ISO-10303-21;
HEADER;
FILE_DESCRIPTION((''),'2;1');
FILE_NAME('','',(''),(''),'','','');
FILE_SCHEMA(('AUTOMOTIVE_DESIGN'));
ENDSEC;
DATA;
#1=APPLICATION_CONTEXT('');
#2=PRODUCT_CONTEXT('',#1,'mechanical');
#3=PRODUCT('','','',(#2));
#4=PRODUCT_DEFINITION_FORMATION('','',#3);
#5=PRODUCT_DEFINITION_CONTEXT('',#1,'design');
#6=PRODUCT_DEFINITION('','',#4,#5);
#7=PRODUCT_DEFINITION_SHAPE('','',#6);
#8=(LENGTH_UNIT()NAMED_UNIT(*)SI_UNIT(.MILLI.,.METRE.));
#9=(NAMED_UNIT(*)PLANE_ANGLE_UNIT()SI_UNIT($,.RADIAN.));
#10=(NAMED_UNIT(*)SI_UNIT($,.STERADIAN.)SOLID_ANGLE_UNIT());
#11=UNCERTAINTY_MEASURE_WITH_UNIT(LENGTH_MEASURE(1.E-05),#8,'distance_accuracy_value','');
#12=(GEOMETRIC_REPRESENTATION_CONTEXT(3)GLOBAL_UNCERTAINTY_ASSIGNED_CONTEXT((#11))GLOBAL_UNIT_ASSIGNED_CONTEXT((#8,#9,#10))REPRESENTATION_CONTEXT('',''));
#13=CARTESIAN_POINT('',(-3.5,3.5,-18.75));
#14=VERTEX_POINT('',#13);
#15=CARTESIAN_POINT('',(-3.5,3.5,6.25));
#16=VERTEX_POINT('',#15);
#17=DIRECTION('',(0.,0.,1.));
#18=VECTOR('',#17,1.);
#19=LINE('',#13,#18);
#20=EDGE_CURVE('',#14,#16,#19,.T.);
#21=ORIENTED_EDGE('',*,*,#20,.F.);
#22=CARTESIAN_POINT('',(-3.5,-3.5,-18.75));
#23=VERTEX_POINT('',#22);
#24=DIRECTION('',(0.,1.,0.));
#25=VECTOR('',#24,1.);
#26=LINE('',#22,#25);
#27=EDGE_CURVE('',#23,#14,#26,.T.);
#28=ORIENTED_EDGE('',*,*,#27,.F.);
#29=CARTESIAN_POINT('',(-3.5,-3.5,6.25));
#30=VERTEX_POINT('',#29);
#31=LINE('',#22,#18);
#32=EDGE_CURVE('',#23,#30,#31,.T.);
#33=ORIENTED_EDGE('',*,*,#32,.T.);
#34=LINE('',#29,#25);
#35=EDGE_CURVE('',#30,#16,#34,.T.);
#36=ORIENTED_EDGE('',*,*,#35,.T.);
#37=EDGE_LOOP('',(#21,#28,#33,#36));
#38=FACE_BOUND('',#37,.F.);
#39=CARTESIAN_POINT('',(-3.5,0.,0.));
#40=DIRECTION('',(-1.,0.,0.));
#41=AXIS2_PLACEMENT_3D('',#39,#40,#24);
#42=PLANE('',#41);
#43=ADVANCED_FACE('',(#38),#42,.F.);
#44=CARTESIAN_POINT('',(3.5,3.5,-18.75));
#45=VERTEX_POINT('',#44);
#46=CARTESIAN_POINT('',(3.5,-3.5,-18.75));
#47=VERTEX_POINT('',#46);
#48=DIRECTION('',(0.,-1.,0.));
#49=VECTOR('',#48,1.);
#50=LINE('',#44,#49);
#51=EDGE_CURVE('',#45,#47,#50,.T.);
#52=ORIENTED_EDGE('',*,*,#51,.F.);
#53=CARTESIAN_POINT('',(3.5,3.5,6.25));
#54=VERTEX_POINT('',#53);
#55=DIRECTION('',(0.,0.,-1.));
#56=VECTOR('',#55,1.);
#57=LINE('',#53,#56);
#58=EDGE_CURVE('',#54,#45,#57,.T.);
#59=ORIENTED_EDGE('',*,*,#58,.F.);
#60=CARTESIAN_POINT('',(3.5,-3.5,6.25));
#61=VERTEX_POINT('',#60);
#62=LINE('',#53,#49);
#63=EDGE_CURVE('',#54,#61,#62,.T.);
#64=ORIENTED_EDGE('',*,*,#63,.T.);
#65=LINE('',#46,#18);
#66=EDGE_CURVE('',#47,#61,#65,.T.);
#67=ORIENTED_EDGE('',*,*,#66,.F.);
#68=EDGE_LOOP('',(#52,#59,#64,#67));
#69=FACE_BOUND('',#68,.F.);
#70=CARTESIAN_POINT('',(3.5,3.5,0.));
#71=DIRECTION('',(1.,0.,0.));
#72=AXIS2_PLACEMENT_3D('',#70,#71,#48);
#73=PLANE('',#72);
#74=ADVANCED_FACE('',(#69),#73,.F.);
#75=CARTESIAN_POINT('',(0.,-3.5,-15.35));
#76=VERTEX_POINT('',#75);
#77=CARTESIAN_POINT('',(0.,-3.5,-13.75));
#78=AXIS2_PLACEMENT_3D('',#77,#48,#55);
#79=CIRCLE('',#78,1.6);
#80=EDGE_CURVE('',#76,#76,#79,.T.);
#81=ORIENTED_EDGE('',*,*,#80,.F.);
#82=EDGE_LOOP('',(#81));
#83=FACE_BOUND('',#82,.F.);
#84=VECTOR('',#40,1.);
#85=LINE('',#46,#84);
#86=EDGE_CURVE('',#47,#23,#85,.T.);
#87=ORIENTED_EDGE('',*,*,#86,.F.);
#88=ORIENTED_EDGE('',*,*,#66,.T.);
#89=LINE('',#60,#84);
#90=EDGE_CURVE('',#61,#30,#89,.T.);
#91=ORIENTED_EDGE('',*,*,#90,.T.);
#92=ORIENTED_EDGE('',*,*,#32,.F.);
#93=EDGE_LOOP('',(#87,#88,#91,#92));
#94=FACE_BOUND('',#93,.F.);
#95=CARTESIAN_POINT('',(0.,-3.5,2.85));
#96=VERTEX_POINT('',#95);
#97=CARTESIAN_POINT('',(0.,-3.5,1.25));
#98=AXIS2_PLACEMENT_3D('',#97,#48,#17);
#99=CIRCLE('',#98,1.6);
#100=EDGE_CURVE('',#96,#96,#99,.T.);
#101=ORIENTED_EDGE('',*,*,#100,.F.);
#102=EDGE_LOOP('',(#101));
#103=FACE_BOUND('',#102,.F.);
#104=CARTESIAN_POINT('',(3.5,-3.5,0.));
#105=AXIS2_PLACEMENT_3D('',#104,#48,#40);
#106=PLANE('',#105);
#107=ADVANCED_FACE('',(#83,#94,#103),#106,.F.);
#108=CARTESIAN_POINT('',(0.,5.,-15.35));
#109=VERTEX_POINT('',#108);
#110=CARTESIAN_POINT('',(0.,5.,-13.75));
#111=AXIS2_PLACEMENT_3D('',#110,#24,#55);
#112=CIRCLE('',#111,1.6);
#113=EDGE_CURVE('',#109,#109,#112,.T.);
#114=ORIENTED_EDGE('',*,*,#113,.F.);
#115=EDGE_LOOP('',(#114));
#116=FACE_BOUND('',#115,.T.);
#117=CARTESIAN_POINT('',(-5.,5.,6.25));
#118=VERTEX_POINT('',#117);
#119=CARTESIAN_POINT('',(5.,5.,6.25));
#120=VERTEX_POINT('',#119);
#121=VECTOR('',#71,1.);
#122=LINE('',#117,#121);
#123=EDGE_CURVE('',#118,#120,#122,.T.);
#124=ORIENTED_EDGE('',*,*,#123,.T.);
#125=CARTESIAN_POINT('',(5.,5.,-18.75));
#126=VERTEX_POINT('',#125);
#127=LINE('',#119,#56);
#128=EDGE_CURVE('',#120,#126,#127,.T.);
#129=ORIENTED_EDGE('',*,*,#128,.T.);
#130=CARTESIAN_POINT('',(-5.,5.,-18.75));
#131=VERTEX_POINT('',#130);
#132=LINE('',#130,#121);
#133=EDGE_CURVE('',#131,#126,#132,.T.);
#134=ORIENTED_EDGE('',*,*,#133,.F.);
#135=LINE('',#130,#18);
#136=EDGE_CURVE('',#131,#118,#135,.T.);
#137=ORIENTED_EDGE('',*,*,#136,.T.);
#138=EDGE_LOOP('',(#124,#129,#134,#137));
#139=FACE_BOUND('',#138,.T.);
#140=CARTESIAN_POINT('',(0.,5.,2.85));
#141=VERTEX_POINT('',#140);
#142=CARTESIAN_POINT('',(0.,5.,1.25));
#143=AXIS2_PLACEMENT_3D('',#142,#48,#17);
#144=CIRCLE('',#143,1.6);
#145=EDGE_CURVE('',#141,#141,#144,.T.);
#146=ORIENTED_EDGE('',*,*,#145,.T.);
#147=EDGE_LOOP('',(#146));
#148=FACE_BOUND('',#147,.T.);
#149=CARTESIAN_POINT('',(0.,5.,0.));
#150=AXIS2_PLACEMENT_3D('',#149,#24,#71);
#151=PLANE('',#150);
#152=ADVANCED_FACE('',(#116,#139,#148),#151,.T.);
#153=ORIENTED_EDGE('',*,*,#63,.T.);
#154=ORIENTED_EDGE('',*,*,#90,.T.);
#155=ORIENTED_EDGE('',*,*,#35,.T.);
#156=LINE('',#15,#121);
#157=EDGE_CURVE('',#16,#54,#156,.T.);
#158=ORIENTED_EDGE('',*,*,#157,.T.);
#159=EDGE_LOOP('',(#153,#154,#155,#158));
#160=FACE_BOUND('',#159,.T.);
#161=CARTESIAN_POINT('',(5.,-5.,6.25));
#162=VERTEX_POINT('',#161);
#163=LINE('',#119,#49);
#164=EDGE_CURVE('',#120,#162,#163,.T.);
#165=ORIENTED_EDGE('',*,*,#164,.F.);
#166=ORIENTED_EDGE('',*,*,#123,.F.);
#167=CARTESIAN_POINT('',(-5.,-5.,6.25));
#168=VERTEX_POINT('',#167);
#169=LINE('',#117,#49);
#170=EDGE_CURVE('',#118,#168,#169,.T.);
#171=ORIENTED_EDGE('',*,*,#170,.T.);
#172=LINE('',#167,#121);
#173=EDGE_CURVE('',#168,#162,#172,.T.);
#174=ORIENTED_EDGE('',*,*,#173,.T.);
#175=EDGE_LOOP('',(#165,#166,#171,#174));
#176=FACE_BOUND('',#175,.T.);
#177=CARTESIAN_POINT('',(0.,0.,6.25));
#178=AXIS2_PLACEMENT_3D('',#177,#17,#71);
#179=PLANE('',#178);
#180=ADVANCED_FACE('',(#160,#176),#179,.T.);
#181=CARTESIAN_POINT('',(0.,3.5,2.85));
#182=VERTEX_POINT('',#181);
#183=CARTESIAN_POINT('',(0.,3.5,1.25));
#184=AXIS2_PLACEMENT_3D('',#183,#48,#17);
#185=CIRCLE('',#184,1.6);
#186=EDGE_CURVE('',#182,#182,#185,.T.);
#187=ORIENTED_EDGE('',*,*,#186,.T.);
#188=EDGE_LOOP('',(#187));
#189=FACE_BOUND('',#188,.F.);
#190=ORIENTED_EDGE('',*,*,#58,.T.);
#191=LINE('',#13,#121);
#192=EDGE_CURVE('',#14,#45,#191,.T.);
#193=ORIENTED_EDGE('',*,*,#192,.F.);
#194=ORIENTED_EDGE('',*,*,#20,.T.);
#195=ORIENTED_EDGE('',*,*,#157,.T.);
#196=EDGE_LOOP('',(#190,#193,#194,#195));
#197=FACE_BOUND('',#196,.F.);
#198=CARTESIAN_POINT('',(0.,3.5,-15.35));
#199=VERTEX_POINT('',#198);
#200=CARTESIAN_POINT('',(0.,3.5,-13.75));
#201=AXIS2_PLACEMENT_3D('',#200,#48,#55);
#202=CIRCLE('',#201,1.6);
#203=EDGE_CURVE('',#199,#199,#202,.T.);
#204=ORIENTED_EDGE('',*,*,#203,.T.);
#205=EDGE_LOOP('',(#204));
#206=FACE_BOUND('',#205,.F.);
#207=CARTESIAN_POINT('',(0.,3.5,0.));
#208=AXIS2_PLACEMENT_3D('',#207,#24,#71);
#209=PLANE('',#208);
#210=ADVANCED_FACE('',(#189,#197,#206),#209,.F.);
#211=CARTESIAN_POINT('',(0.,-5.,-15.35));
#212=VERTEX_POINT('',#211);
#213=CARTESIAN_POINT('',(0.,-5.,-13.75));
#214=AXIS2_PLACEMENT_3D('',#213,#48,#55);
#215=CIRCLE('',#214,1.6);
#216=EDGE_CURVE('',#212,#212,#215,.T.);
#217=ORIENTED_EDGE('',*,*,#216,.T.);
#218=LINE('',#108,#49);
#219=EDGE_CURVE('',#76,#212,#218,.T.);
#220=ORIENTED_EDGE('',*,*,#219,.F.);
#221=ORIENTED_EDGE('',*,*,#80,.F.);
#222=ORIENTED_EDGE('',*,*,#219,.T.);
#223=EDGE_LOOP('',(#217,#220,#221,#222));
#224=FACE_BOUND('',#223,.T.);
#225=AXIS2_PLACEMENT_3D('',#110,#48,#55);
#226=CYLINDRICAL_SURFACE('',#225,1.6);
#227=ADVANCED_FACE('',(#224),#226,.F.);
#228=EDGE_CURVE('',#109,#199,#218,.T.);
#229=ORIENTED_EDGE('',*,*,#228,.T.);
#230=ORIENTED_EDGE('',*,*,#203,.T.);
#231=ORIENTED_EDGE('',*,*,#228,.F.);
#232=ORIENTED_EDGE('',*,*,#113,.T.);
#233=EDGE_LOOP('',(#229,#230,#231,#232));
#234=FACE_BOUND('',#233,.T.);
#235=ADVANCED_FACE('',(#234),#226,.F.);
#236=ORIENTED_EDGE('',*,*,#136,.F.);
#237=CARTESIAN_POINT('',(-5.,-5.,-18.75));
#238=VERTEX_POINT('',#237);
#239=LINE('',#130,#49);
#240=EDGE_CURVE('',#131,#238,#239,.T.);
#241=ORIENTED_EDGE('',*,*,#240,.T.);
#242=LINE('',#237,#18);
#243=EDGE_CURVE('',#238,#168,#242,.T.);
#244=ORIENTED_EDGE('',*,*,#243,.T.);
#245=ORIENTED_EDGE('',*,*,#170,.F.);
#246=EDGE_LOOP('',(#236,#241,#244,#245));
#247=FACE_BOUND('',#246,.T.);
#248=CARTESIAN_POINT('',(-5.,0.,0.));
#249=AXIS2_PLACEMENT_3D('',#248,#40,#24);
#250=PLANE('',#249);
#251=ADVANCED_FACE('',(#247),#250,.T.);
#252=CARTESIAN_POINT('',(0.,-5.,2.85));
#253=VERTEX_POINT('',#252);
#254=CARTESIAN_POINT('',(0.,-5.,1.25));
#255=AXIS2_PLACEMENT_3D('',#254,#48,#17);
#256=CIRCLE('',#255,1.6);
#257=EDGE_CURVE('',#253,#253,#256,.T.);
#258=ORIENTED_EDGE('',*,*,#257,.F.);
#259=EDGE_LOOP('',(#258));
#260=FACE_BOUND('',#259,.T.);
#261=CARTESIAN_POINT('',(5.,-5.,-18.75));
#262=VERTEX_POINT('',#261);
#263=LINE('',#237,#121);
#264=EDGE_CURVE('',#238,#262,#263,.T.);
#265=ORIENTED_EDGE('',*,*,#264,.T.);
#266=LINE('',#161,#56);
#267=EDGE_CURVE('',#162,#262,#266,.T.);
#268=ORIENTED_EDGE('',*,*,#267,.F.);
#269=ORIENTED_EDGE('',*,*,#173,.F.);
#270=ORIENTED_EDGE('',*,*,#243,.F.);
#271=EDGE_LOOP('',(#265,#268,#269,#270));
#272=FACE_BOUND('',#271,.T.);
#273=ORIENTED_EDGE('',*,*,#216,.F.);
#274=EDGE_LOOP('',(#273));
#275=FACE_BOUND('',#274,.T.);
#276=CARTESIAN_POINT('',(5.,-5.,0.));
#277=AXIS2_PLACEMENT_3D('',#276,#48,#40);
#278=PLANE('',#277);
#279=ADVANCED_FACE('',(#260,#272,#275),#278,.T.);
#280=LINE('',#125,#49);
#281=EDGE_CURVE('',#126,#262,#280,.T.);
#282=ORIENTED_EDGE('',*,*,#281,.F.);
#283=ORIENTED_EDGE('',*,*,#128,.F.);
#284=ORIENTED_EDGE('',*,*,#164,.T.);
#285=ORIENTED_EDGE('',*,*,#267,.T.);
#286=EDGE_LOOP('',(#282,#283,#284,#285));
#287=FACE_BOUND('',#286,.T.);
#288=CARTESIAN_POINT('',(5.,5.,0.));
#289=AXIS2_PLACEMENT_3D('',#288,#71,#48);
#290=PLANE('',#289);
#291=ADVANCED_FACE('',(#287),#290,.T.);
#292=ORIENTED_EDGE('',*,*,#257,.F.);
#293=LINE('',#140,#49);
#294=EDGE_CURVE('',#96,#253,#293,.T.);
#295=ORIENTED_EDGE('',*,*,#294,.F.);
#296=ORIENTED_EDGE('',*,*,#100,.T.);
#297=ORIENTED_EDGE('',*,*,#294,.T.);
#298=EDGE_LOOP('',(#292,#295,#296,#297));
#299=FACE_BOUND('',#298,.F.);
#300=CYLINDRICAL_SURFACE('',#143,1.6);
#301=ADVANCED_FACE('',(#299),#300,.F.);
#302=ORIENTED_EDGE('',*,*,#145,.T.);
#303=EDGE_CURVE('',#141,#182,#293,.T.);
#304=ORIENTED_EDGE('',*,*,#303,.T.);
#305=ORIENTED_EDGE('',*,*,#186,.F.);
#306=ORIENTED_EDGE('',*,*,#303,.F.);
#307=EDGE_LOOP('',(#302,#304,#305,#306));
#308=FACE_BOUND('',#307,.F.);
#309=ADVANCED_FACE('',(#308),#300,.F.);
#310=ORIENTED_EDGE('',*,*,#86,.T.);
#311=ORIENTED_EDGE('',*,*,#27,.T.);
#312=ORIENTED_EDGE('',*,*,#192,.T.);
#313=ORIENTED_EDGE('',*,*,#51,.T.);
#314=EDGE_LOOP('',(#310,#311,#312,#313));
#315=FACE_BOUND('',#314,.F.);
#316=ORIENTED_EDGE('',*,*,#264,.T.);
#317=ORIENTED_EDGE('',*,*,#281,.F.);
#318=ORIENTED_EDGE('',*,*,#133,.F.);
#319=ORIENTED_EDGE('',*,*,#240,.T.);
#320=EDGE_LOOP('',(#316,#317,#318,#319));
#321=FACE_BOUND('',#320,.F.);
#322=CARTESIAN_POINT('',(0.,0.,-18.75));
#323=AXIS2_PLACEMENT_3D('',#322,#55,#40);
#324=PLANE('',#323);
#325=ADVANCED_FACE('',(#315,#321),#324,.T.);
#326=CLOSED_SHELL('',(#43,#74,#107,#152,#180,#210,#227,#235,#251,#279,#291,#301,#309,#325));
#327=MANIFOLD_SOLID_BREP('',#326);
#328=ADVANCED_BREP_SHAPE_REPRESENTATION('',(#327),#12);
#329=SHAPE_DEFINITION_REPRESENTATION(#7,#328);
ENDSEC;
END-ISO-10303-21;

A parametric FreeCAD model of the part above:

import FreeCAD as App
import Part
import Sketcher
Q = App.Units.Quantity

doc = App.newDocument("Part")
params = doc.addObject("Spreadsheet::Sheet", "Params")
for row, (alias, value) in enumerate([
    ("sketch1_width", "10 mm"),
    ("pad1_length", "12.5 mm"),
    ("sketch2_diameter", "3.2 mm"),
    ("hole_diameter", "3.2 mm"),
], start=1):
    params.set(f"A{row}", alias)
    params.set(f"B{row}", "=" + value)
    params.setAlias(f"B{row}", alias)

body = doc.addObject("PartDesign::Body", "Body")

sketch1 = body.newObject("Sketcher::SketchObject", "Sketch")
sketch1.AttachmentSupport = (doc.getObject("XY_Plane"), [""])
sketch1.MapMode = "FlatFace"
sketch1.addGeometry(Part.LineSegment(App.Vector(5, 5, 0), App.Vector(-5, 5, 0)), False)
sketch1.addGeometry(Part.LineSegment(App.Vector(-5, 5, 0), App.Vector(-5, -5, 0)), False)
sketch1.addGeometry(Part.LineSegment(App.Vector(-5, -5, 0), App.Vector(5, -5, 0)), False)
sketch1.addGeometry(Part.LineSegment(App.Vector(5, -5, 0), App.Vector(5, 5, 0)), False)
sketch1.addGeometry(Part.LineSegment(App.Vector(4, 4, 0), App.Vector(4, -4, 0)), False)
sketch1.addGeometry(Part.LineSegment(App.Vector(4, -4, 0), App.Vector(-4, -4, 0)), False)
sketch1.addGeometry(Part.LineSegment(App.Vector(-4, -4, 0), App.Vector(-4, 4, 0)), False)
sketch1.addGeometry(Part.LineSegment(App.Vector(-4, 4, 0), App.Vector(4, 4, 0)), False)
sketch1.addConstraint(Sketcher.Constraint("Coincident", 0, 2, 1, 1))
sketch1.addConstraint(Sketcher.Constraint("Coincident", 1, 2, 2, 1))
sketch1.addConstraint(Sketcher.Constraint("Coincident", 2, 2, 3, 1))
sketch1.addConstraint(Sketcher.Constraint("Coincident", 3, 2, 0, 1))
sketch1.addConstraint(Sketcher.Constraint("Coincident", 4, 2, 5, 1))
sketch1.addConstraint(Sketcher.Constraint("Coincident", 5, 2, 6, 1))
sketch1.addConstraint(Sketcher.Constraint("Coincident", 6, 2, 7, 1))
sketch1.addConstraint(Sketcher.Constraint("Coincident", 7, 2, 4, 1))
sketch1.addConstraint(Sketcher.Constraint("Horizontal", 0))
sketch1.addConstraint(Sketcher.Constraint("Vertical", 1))
sketch1.addConstraint(Sketcher.Constraint("Horizontal", 2))
sketch1.addConstraint(Sketcher.Constraint("Vertical", 3))
sketch1.addConstraint(Sketcher.Constraint("Vertical", 4))
sketch1.addConstraint(Sketcher.Constraint("Horizontal", 5))
sketch1.addConstraint(Sketcher.Constraint("Vertical", 6))
sketch1.addConstraint(Sketcher.Constraint("Horizontal", 7))
sketch1.addConstraint(Sketcher.Constraint("Symmetric", 0, 2, 2, 2, -1, 1))
sketch1.addConstraint(Sketcher.Constraint("Symmetric", 4, 2, 6, 2, -1, 1))
sketch1.addConstraint(Sketcher.Constraint("Equal", 2, 1))
sketch1.addConstraint(Sketcher.Constraint("Equal", 7, 4))
sketch1.addConstraint(Sketcher.Constraint("DistanceX", 0, 2, 0, 1, Q("10 mm")))
sketch1.addConstraint(Sketcher.Constraint("DistanceX", 4, 2, 2, 2, Q("1.5 mm")))
sketch1.setExpression("Constraints[20]", "Params.sketch1_width")
pad1 = body.newObject("PartDesign::Pad", "Pad")
pad1.Profile = sketch1
pad1.setExpression("Length", "Params.pad1_length")
pad1.Midplane = True

sketch2 = body.newObject("Sketcher::SketchObject", "Sketch001")
sketch2.AttachmentSupport = (doc.getObject("XZ_Plane"), [""])
sketch2.MapMode = "FlatFace"
sketch2.AttachmentOffset = App.Placement(App.Vector(0, 0, -5), App.Rotation())
sketch2.addGeometry(Part.Circle(App.Vector(0, 1.2, 0), App.Vector(0, 0, 1), 1.6), False)
sketch2.addConstraint(Sketcher.Constraint("PointOnObject", 0, 3, -2))
sketch2.addConstraint(Sketcher.Constraint("Diameter", 0, Q("3.2 mm")))
sketch2.addConstraint(Sketcher.Constraint("DistanceY", -1, 1, 0, 3, Q("1.25 mm")))
sketch2.setExpression("Constraints[1]", "Params.sketch2_diameter")
doc.recompute()
hole = body.newObject("PartDesign::Hole", "Hole")
hole.Profile = sketch2
hole.ThreadType = "None"
hole.setExpression("Diameter", "Params.hole_diameter")
hole.DepthType = "ThroughAll"
hole.Reversed = True
doc.recompute()

datumplane = body.newObject("PartDesign::Plane", "DatumPlane")
datumplane.AttachmentSupport = (doc.getObject("XY_Plane"), [""])
datumplane.MapMode = "FlatFace"
datumplane.AttachmentOffset = App.Placement(App.Vector(0, 0, -6.25), App.Rotation())
mirrored = body.newObject("PartDesign::Mirrored", "Mirrored")
mirrored.Originals = [pad1, hole]
mirrored.MirrorPlane = (datumplane, [""])
body.Tip = mirrored

doc.recompute()
